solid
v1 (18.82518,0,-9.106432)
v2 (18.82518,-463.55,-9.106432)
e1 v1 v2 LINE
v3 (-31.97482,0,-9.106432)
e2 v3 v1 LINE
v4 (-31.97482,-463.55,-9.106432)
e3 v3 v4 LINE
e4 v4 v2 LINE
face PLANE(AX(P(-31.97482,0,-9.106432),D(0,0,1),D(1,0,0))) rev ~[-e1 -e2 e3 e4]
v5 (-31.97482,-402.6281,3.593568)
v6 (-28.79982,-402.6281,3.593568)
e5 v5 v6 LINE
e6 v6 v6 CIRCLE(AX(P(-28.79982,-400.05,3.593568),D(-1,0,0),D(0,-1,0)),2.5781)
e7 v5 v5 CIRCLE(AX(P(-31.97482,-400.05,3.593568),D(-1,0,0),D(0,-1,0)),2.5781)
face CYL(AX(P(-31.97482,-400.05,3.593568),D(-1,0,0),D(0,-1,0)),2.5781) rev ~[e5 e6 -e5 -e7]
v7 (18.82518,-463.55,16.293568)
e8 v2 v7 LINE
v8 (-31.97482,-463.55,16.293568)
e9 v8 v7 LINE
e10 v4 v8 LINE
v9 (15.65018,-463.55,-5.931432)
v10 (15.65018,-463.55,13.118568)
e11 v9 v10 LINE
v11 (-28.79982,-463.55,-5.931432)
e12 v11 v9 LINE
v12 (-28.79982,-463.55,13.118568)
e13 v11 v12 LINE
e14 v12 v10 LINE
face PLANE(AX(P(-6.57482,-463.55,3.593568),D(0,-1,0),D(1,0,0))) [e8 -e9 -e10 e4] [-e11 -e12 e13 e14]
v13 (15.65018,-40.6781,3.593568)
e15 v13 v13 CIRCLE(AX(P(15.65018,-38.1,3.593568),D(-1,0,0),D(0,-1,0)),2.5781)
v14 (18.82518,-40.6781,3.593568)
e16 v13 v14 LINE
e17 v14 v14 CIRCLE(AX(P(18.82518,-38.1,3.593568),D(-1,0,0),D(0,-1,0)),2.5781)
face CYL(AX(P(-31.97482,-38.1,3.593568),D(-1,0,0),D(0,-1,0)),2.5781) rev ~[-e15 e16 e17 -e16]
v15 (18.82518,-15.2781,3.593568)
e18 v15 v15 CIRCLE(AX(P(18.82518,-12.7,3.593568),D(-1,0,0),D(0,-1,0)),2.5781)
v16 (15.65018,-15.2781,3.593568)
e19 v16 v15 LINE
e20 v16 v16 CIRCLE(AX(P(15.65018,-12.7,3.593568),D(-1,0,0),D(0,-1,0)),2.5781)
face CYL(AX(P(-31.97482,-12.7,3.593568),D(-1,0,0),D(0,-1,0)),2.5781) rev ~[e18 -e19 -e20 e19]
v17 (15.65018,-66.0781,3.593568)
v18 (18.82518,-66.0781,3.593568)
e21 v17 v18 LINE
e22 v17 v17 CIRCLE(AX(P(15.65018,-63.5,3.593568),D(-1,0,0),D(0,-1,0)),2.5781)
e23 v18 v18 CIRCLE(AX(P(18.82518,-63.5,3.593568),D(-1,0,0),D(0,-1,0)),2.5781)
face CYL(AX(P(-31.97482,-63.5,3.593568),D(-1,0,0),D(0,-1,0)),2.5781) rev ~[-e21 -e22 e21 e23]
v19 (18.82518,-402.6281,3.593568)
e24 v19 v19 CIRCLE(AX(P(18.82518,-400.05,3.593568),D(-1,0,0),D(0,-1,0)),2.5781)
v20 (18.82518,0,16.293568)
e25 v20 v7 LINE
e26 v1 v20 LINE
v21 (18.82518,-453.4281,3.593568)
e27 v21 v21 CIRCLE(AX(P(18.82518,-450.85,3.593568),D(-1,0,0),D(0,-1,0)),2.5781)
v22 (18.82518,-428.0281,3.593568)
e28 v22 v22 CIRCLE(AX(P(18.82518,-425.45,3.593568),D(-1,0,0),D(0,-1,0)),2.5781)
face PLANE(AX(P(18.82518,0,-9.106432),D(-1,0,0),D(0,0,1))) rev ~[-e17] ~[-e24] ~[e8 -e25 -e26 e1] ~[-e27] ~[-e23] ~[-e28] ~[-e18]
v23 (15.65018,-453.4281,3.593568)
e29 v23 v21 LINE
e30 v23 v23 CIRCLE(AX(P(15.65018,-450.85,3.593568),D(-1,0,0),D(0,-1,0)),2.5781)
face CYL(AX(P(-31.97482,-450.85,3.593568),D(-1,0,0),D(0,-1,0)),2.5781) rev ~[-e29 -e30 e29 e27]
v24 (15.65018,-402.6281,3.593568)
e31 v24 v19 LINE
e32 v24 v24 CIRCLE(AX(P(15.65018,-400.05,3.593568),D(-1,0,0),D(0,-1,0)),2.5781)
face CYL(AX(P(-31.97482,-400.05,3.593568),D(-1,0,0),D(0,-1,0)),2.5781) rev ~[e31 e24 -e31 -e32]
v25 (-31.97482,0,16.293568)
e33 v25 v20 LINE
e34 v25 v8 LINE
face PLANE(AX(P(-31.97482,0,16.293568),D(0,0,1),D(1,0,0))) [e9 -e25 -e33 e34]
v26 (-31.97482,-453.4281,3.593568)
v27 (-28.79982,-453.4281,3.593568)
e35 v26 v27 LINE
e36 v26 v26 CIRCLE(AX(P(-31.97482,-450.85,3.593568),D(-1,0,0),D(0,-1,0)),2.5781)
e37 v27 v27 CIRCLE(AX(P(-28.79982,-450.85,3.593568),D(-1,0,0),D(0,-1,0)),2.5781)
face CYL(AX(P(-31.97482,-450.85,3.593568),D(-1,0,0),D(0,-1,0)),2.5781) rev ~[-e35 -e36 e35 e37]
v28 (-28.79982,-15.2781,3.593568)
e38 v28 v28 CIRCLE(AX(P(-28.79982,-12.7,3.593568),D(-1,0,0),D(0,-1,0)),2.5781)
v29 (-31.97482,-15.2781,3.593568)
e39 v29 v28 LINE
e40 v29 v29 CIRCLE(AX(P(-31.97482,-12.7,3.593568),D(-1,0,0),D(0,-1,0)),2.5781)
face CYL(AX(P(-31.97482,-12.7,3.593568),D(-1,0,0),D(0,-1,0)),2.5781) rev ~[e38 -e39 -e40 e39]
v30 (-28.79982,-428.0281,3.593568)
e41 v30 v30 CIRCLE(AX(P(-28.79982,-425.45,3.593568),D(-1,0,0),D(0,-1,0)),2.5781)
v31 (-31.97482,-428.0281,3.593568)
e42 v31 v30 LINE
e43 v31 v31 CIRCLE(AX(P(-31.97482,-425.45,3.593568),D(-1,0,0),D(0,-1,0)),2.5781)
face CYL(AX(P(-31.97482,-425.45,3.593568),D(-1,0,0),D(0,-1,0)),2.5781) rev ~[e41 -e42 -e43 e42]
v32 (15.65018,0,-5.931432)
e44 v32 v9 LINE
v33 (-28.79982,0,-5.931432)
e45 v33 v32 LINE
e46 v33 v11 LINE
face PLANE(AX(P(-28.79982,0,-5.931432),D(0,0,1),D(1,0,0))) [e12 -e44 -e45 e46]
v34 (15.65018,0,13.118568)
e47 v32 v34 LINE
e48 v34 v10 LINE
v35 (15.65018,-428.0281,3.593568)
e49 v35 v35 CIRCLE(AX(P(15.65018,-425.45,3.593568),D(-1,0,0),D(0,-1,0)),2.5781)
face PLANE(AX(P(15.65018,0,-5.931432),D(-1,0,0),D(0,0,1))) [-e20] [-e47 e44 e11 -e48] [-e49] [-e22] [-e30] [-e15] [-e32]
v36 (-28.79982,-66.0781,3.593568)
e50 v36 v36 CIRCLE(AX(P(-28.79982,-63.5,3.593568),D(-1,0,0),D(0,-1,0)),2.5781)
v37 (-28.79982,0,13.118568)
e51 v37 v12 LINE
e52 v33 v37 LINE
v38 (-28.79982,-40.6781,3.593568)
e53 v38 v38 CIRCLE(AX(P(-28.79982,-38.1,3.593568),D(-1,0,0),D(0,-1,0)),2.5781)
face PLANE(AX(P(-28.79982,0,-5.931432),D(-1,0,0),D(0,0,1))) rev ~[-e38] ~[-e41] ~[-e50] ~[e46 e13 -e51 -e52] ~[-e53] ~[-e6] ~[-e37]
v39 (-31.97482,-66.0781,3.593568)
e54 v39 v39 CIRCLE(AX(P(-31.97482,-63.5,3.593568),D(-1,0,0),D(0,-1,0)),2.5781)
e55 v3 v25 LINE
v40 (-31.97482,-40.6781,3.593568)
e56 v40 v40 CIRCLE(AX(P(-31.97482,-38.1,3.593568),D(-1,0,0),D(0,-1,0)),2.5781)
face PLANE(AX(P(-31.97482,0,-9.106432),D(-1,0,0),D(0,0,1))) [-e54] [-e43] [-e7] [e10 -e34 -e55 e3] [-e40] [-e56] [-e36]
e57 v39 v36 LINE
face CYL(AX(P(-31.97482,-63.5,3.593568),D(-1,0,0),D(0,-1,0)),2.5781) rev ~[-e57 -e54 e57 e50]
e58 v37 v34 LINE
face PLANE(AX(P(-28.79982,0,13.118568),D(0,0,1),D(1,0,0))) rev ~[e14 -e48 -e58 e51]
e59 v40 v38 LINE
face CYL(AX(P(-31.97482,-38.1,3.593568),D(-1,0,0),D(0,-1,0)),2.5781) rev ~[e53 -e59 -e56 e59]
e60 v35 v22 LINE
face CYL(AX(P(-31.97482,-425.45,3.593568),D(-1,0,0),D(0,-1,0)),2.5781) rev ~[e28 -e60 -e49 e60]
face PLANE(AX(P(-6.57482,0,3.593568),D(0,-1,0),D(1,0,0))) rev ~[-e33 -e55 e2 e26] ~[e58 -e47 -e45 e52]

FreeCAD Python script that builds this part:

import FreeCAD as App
import Part
import Sketcher
from FreeCAD import Vector
Q = App.Units.Quantity

doc = App.newDocument("Part")
body = doc.addObject("PartDesign::Body", "Body")

sketch1 = body.newObject("Sketcher::SketchObject", "Sketch")
sketch1.AttachmentSupport = (doc.getObject("XZ_Plane"), [""])
sketch1.MapMode = "FlatFace"
sketch1.addGeometry([
    Part.LineSegment(Vector(-31.97482, 16.293568, 0), Vector(-31.97482, -9.106432, 0)),
    Part.LineSegment(Vector(-31.97482, -9.106432, 0), Vector(18.82518, -9.106432, 0)),
    Part.LineSegment(Vector(18.82518, -9.106432, 0), Vector(18.82518, 16.293568, 0)),
    Part.LineSegment(Vector(18.82518, 16.293568, 0), Vector(-31.97482, 16.293568, 0)),
    Part.LineSegment(Vector(15.65018, -5.931432, 0), Vector(-28.79982, -5.931432, 0)),
    Part.LineSegment(Vector(-28.79982, -5.931432, 0), Vector(-28.79982, 13.118568, 0)),
    Part.LineSegment(Vector(-28.79982, 13.118568, 0), Vector(15.65018, 13.118568, 0)),
    Part.LineSegment(Vector(15.65018, 13.118568, 0), Vector(15.65018, -5.931432, 0)),
], False)
sketch1.addConstraint([
    Sketcher.Constraint("Coincident", 0, 2, 1, 1),
    Sketcher.Constraint("Coincident", 1, 2, 2, 1),
    Sketcher.Constraint("Coincident", 2, 2, 3, 1),
    Sketcher.Constraint("Coincident", 3, 2, 0, 1),
    Sketcher.Constraint("Coincident", 4, 2, 5, 1),
    Sketcher.Constraint("Coincident", 5, 2, 6, 1),
    Sketcher.Constraint("Coincident", 6, 2, 7, 1),
    Sketcher.Constraint("Coincident", 7, 2, 4, 1),
    Sketcher.Constraint("Vertical", 0),
    Sketcher.Constraint("Horizontal", 1),
    Sketcher.Constraint("Vertical", 2),
    Sketcher.Constraint("Horizontal", 3),
    Sketcher.Constraint("Horizontal", 4),
    Sketcher.Constraint("Vertical", 5),
    Sketcher.Constraint("Horizontal", 6),
    Sketcher.Constraint("Vertical", 7),
    Sketcher.Constraint("DistanceX", 1, 1, 1, 2, Q("2 in")),
    Sketcher.Constraint("DistanceY", 0, 2, 0, 1, Q("1 in")),
    Sketcher.Constraint("DistanceX", 4, 2, 4, 1, Q("1.75 in")),
    Sketcher.Constraint("DistanceY", 5, 1, 5, 2, Q("0.75 in")),
    Sketcher.Constraint("DistanceX", 0, 2, 4, 2, Q("0.125 in")),
    Sketcher.Constraint("DistanceY", 0, 2, 4, 2, Q("0.125 in")),
    Sketcher.Constraint("DistanceX", 0, 2, -1, 1, Q("31.97482 mm")),
    Sketcher.Constraint("DistanceY", -1, 1, 2, 2, Q("16.293568 mm")),
])
pad1 = body.newObject("PartDesign::Pad", "Pad")
pad1.Profile = sketch1
pad1.Length = Q("18.25 in")

sketch2 = body.newObject("Sketcher::SketchObject", "Sketch001")
sketch2.AttachmentSupport = (doc.getObject("YZ_Plane"), [""])
sketch2.MapMode = "FlatFace"
sketch2.AttachmentOffset = App.Placement(Vector(0, 0, -31.97482), App.Rotation())
sketch2.addGeometry([
    Part.Circle(Vector(-12.7, 3.593568, 0), Vector(0, 0, 1), 2.5781),
    Part.Circle(Vector(-38.1, 3.593568, 0), Vector(0, 0, 1), 2.5781),
    Part.Circle(Vector(-63.5, 3.593568, 0), Vector(0, 0, 1), 2.5781),
    Part.Circle(Vector(-400.05, 3.593568, 0), Vector(0, 0, 1), 2.5781),
    Part.Circle(Vector(-425.45, 3.593568, 0), Vector(0, 0, 1), 2.5781),
    Part.Circle(Vector(-450.85, 3.593568, 0), Vector(0, 0, 1), 2.5781),
], False)
sketch2.addConstraint([
    Sketcher.Constraint("Equal", 0, 1),
    Sketcher.Constraint("Equal", 1, 2),
    Sketcher.Constraint("Equal", 2, 3),
    Sketcher.Constraint("Equal", 3, 4),
    Sketcher.Constraint("Equal", 4, 5),
    Sketcher.Constraint("Horizontal", 0, 3, 1, 3),
    Sketcher.Constraint("Horizontal", 1, 3, 2, 3),
    Sketcher.Constraint("Horizontal", 2, 3, 3, 3),
    Sketcher.Constraint("Horizontal", 3, 3, 4, 3),
    Sketcher.Constraint("Horizontal", 4, 3, 5, 3),
    Sketcher.Constraint("Diameter", 0, Q("0.203 in")),
    Sketcher.Constraint("DistanceX", 1, 3, 0, 3, Q("1 in")),
    Sketcher.Constraint("DistanceX", 2, 3, 1, 3, Q("1 in")),
    Sketcher.Constraint("DistanceX", 4, 3, 3, 3, Q("1 in")),
    Sketcher.Constraint("DistanceX", 5, 3, 4, 3, Q("1 in")),
    Sketcher.Constraint("DistanceX", 0, 3, -1, 1, Q("0.5 in")),
    Sketcher.Constraint("DistanceX", 3, 3, -1, 1, Q("15.75 in")),
    Sketcher.Constraint("DistanceY", -1, 1, 0, 3, Q("3.593568 mm")),
])
pocket1 = body.newObject("PartDesign::Pocket", "Pocket")
pocket1.Profile = sketch2
pocket1.Type = "ThroughAll"
pocket1.Reversed = True

doc.recompute()
